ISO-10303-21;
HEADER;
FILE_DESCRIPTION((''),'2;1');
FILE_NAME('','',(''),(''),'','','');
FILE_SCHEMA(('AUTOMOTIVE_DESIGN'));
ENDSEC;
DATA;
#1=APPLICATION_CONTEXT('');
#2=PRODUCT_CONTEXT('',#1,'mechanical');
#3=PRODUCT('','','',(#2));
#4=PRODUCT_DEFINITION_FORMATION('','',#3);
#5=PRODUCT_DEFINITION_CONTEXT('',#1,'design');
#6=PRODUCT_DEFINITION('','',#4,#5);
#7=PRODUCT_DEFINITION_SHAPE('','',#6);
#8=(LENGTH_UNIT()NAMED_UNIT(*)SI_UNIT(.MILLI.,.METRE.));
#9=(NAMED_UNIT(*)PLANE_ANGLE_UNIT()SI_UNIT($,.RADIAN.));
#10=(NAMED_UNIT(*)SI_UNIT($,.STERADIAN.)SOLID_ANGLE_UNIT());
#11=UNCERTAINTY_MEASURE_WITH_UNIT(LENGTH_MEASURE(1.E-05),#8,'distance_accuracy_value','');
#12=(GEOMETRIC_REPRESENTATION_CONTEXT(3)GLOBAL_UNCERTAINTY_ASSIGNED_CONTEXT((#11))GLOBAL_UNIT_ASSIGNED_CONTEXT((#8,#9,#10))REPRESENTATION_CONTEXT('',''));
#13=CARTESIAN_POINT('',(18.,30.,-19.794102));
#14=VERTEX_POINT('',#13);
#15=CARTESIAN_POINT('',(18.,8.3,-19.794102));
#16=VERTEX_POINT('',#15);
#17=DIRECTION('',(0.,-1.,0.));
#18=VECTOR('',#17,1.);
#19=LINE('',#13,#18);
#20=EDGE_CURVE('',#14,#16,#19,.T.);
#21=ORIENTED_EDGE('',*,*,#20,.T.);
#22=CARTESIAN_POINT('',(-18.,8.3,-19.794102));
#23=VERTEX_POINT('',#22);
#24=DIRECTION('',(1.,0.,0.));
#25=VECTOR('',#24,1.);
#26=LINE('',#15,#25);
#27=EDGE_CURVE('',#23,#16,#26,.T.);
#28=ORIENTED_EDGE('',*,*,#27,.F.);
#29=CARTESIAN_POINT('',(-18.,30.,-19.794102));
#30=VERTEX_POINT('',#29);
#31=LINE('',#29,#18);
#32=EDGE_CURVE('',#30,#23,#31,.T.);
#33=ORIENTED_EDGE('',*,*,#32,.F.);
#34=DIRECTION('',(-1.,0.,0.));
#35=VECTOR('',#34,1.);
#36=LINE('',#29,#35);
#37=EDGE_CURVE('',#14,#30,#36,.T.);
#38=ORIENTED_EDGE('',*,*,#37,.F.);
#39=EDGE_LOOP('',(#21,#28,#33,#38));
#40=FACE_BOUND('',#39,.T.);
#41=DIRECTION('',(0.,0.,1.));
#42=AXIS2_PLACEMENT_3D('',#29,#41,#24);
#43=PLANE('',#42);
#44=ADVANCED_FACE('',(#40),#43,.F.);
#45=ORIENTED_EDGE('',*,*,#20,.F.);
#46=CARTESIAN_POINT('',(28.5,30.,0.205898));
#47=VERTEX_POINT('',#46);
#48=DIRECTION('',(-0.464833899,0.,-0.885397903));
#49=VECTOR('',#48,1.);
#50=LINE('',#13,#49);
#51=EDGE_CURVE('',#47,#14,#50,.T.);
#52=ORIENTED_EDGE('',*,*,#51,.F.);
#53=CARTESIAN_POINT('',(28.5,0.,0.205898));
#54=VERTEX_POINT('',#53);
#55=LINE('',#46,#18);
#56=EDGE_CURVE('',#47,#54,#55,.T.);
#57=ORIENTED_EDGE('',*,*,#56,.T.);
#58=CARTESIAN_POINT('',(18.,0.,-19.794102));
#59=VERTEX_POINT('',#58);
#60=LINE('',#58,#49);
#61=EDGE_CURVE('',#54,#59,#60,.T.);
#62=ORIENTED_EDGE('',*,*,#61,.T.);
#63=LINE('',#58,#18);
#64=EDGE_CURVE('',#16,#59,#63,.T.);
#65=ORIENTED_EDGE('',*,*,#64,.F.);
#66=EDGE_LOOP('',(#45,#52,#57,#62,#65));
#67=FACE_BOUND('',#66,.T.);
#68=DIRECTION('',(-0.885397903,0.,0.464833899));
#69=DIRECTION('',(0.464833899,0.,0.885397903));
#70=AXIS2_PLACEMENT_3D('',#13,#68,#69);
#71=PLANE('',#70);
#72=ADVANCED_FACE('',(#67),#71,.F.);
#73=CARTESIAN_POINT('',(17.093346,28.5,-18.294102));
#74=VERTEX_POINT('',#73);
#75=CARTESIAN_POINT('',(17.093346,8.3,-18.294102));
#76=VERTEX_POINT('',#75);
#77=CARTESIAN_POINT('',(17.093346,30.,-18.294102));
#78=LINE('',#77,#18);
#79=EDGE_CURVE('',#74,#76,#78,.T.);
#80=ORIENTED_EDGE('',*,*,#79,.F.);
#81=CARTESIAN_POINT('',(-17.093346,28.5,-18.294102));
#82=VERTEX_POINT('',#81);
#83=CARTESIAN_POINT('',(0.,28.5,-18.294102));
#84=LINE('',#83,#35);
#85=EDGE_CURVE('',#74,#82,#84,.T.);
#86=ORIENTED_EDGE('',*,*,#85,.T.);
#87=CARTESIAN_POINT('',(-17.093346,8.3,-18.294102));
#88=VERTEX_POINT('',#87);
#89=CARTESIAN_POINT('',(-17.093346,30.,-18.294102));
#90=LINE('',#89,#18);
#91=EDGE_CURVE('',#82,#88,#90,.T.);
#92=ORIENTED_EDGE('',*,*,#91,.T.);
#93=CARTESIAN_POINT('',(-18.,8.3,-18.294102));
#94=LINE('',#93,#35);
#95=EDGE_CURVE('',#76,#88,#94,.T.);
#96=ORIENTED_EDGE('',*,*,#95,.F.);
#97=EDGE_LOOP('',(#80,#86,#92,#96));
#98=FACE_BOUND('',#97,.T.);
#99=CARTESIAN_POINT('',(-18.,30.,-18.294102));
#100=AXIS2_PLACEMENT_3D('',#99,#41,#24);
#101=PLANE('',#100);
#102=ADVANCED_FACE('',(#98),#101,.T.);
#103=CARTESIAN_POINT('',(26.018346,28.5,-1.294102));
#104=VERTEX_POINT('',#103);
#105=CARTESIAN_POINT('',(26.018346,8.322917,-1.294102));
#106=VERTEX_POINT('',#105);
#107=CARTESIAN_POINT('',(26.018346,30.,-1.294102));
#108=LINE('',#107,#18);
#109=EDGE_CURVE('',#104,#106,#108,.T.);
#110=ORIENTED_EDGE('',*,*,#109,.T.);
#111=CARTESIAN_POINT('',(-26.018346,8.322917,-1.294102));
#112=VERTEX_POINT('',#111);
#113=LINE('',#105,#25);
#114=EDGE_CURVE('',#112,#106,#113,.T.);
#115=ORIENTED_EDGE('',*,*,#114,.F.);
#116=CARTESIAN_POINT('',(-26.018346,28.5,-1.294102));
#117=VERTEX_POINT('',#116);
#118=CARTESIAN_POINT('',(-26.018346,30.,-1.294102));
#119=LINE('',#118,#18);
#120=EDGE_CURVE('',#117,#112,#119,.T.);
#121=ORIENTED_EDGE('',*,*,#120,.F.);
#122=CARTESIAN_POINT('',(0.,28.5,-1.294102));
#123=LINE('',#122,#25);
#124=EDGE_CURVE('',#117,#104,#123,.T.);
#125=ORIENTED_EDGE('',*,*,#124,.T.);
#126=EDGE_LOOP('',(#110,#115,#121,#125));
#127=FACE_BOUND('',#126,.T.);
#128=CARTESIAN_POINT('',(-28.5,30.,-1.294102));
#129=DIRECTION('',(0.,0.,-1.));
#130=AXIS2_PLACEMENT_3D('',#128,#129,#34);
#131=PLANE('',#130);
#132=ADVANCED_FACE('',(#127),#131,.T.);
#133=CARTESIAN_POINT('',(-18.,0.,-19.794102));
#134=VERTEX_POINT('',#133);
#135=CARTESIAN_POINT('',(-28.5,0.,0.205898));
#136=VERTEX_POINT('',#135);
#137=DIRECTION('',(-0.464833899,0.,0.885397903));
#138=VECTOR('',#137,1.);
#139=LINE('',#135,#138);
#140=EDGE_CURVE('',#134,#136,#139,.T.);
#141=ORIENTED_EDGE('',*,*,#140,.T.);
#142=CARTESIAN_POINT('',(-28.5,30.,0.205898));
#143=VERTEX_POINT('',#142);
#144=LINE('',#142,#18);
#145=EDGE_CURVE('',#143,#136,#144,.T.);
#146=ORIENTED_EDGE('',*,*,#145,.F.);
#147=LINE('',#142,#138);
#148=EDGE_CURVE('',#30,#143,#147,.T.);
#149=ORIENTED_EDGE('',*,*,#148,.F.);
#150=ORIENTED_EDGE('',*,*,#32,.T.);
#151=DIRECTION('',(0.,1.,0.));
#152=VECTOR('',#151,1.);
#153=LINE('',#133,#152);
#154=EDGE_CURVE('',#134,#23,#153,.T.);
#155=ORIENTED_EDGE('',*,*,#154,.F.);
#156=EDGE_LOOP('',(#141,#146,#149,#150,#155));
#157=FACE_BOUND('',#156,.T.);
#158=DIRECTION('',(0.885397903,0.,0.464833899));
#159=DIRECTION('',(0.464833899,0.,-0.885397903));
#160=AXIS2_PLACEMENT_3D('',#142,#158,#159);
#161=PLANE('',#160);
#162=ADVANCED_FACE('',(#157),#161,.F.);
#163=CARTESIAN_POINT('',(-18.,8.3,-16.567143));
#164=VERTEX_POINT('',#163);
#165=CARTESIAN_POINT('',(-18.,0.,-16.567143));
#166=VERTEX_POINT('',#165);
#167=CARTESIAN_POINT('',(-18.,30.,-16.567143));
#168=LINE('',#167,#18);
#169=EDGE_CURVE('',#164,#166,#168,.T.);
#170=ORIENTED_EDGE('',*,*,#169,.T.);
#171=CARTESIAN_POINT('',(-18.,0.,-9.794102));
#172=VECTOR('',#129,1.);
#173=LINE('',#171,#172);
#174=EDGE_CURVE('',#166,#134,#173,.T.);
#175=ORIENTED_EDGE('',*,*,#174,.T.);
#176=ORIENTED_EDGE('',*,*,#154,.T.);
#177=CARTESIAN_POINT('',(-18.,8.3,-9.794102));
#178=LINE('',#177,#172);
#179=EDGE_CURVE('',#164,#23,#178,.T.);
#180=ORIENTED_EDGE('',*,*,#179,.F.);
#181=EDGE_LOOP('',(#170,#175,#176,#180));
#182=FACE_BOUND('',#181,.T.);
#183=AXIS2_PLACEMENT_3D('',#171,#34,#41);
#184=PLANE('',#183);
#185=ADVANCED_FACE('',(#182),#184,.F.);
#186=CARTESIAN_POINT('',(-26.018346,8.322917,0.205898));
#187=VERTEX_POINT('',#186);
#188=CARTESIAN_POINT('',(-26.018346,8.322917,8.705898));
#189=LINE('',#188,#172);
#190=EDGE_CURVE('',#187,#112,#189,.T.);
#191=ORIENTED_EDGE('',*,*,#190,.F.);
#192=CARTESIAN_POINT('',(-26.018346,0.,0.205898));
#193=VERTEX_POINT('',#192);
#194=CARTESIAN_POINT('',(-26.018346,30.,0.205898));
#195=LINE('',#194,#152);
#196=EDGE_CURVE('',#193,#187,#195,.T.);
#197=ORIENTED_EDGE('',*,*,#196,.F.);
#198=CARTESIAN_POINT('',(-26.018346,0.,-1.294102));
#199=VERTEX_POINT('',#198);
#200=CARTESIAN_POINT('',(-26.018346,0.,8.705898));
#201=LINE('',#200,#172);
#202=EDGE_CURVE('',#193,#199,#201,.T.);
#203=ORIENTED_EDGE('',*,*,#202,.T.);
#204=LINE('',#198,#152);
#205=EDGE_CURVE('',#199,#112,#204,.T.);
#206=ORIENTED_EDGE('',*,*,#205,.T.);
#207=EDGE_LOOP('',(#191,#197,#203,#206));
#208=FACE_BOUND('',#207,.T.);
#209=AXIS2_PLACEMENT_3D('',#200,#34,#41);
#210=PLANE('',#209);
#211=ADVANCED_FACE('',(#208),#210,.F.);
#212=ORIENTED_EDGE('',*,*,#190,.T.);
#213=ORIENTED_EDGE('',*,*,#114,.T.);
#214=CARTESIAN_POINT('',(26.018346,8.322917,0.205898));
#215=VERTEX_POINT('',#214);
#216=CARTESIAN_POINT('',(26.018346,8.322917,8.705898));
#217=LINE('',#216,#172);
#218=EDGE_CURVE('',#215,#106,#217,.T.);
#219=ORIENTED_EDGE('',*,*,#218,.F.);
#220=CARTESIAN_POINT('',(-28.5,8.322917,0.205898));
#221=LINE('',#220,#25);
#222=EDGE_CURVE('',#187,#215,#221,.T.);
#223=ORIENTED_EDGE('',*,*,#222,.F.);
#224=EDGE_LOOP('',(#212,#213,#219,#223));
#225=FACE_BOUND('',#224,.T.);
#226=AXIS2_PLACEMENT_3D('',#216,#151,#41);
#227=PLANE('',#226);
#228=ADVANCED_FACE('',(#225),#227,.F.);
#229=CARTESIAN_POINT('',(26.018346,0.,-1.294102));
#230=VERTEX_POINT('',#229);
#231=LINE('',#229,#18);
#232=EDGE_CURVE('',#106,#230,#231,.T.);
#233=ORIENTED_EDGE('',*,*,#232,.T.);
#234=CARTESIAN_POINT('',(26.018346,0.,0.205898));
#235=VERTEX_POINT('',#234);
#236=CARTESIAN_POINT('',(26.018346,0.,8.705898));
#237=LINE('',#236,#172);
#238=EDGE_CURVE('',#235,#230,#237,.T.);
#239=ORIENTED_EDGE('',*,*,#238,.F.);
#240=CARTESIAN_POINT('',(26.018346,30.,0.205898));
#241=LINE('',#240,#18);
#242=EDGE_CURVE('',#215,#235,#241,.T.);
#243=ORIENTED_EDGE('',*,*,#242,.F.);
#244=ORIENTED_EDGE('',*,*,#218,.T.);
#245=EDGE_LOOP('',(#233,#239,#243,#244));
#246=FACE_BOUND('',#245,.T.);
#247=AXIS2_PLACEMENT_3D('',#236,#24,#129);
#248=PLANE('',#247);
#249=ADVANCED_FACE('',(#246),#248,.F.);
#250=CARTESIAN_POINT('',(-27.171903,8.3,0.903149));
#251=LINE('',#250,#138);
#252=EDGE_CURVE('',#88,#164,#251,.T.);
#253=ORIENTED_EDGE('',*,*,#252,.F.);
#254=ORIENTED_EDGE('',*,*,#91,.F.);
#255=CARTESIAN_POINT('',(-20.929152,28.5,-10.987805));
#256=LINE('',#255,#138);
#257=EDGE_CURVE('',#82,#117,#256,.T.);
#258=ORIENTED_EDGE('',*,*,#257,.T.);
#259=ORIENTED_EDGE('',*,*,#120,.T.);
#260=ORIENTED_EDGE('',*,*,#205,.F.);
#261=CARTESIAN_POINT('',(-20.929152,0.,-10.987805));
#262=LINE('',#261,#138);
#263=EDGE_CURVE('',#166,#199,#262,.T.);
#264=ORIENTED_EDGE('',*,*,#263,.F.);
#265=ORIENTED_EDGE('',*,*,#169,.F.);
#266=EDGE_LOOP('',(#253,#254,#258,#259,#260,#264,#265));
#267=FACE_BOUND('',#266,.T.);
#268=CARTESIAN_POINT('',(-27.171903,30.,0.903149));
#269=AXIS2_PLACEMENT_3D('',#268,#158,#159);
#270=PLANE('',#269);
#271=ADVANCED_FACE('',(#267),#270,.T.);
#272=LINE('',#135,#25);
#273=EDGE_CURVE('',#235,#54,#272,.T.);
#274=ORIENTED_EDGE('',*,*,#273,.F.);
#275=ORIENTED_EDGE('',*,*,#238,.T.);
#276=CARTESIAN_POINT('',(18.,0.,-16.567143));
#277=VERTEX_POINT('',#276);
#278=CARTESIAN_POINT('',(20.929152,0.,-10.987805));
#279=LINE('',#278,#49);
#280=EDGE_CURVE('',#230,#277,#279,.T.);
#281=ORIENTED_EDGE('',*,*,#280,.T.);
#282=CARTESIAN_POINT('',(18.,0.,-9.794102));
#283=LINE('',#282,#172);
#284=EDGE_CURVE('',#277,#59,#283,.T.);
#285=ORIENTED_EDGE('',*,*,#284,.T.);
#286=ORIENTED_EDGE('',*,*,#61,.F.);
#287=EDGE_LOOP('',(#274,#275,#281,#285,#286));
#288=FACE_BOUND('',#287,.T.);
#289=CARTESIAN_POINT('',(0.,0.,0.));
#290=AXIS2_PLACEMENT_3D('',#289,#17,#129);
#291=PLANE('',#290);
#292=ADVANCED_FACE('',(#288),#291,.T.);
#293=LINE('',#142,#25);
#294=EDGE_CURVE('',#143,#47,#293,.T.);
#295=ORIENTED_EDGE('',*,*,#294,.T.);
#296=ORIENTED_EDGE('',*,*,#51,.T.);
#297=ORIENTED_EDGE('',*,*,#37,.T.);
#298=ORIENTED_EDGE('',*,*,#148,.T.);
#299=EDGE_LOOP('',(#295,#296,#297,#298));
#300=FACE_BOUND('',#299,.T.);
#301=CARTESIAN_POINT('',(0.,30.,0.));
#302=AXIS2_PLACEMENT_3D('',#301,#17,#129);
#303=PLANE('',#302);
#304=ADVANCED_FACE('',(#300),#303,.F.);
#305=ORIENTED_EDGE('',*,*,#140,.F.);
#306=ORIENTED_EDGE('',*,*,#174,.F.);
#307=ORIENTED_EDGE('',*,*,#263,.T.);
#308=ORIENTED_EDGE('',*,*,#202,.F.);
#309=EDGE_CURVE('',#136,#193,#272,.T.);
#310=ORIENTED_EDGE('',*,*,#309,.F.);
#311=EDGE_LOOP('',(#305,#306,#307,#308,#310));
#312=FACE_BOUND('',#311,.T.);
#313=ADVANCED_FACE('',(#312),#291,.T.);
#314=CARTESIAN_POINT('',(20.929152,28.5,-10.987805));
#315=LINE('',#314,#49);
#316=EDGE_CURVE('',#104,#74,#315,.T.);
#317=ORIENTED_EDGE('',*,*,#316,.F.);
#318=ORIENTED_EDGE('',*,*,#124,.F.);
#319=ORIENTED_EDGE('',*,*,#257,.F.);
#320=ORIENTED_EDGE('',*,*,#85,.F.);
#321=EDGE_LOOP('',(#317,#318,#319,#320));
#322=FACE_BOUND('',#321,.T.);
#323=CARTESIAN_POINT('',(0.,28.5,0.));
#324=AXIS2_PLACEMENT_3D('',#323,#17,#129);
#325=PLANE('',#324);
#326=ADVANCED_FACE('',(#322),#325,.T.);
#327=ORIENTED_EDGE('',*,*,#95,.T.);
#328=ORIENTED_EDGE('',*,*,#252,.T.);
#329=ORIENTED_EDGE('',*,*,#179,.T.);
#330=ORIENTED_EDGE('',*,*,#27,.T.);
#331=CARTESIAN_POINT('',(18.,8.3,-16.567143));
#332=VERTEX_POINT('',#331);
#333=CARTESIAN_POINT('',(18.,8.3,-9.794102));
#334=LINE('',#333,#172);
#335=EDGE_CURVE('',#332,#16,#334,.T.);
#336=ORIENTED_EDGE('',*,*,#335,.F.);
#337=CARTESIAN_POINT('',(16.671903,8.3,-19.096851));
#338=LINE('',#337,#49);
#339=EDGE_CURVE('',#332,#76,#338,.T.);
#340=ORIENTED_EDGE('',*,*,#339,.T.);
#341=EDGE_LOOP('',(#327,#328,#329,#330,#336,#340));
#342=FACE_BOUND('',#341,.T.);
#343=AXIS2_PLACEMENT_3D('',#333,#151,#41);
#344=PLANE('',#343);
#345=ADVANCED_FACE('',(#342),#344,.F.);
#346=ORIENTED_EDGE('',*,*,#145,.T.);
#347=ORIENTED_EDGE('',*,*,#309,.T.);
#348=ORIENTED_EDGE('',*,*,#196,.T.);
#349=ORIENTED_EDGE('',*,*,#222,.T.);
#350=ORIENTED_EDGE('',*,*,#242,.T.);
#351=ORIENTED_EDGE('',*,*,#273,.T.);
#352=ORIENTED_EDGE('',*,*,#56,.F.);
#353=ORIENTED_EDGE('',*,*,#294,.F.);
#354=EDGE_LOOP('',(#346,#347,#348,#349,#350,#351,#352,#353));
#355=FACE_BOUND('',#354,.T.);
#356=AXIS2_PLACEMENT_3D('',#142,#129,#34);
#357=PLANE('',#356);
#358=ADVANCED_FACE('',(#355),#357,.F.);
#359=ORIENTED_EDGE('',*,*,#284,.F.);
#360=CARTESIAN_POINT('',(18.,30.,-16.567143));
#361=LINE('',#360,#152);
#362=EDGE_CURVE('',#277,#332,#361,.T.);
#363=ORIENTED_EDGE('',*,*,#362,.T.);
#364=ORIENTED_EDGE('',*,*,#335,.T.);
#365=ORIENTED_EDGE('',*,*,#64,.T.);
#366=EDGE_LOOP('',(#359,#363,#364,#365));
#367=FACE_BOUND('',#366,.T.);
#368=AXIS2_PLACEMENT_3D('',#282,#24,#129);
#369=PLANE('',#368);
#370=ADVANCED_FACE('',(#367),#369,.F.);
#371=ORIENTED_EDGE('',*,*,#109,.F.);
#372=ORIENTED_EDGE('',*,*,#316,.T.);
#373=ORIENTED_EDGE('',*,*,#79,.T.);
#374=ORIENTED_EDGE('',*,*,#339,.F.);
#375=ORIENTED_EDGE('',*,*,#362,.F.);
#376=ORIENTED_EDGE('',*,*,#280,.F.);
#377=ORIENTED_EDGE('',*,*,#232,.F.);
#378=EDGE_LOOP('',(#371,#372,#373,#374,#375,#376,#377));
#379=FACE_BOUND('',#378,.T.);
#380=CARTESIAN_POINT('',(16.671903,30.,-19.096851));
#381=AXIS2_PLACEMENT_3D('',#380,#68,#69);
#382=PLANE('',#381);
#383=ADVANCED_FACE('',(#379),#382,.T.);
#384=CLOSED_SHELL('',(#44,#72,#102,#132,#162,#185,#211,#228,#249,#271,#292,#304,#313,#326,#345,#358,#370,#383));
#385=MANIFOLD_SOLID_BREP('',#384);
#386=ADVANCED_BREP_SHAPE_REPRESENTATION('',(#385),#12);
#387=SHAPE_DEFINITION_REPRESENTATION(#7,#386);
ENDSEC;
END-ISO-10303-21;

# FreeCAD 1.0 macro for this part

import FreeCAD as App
import Part
import Sketcher
from FreeCAD import Vector
Q = App.Units.Quantity


def faces_at(feature, points):
    """Names of the faces that lie closest to the given points."""
    faces = feature.Shape.Faces
    near = lambda p: min(range(len(faces)), key=lambda i: faces[i].distToShape(Part.Vertex(*p))[0])
    return sorted({f"Face{near(p) + 1}" for p in points})

doc = App.newDocument("Part")
params = doc.addObject("Spreadsheet::Sheet", "Params")
for row, (alias, value) in enumerate([
    ("sketch1_width", "57 mm"),
    ("sketch1_width2", "36 mm"),
    ("pad1_length", "30 mm"),
    ("thickness_wall", "1.5 mm"),
    ("sketch2_width", "36 mm"),
    ("sketch2_height", "8.3 mm"),
    ("pocket1_length", "10 mm"),
    ("pocket2_length", "10 mm"),
], start=1):
    params.set(f"A{row}", alias)
    params.set(f"B{row}", "=" + value)
    params.setAlias(f"B{row}", alias)

body = doc.addObject("PartDesign::Body", "Body")

# Sketch on XZ plane
sketch1 = doc.addObject("Sketcher::SketchObject", "Sketch")
body.addObject(sketch1)
sketch1.AttachmentSupport = (doc.XZ_Plane, [""])
sketch1.MapMode = "FlatFace"
sketch1.addGeometry([
    Part.LineSegment(Vector(-18, -19.794102, 0), Vector(-28.5, 0.205898, 0)),
    Part.LineSegment(Vector(-28.5, 0.205898, 0), Vector(28.5, 0.205898, 0)),
    Part.LineSegment(Vector(28.5, 0.205898, 0), Vector(18, -19.794102, 0)),
    Part.LineSegment(Vector(18, -19.794102, 0), Vector(-18, -19.794102, 0)),
], False)
sketch1.addConstraint([
    Sketcher.Constraint("Coincident", 0, 2, 1, 1),
    Sketcher.Constraint("Coincident", 1, 2, 2, 1),
    Sketcher.Constraint("Coincident", 2, 2, 3, 1),
    Sketcher.Constraint("Coincident", 3, 2, 0, 1),
    Sketcher.Constraint("Horizontal", 1),
    Sketcher.Constraint("Horizontal", 3),
    Sketcher.Constraint("Equal", 0, 2),
    Sketcher.Constraint("DistanceX", 1, 1, 1, 2, Q("57 mm")),
    Sketcher.Constraint("DistanceX", 3, 2, 3, 1, Q("36 mm")),
    Sketcher.Constraint("DistanceX", -1, 1, 2, 2, Q("18 mm")),
    Sketcher.Constraint("DistanceY", 2, 2, 1, 2, Q("20 mm")),
    Sketcher.Constraint("DistanceY", -1, 1, 0, 2, Q("0.205898 mm")),
])
sketch1.setExpression("Constraints[7]", "Params.sketch1_width")
sketch1.setExpression("Constraints[8]", "Params.sketch1_width2")
pad1 = doc.addObject("PartDesign::Pad", "Pad")
body.addObject(pad1)
pad1.Profile = sketch1
pad1.setExpression("Length", "Params.pad1_length")
pad1.Reversed = True
doc.recompute()

thickness = doc.addObject("PartDesign::Thickness", "Thickness")
body.addObject(thickness)
thickness.Base = (pad1, faces_at(pad1, [(0, 0, -9.794)]))
thickness.setExpression("Value", "Params.thickness_wall")
thickness.Reversed = True
thickness.Join = "Intersection"

# Sketch on XY plane
sketch2 = doc.addObject("Sketcher::SketchObject", "Sketch001")
body.addObject(sketch2)
sketch2.AttachmentSupport = (doc.XY_Plane, [""])
sketch2.MapMode = "FlatFace"
sketch2.AttachmentOffset = App.Placement(Vector(0, 0, -19.794102), App.Rotation())
sketch2.addGeometry([
    Part.LineSegment(Vector(18, 8.3, 0), Vector(18, 0, 0)),
    Part.LineSegment(Vector(18, 0, 0), Vector(-18, 0, 0)),
    Part.LineSegment(Vector(-18, 0, 0), Vector(-18, 8.3, 0)),
    Part.LineSegment(Vector(-18, 8.3, 0), Vector(18, 8.3, 0)),
], False)
sketch2.addConstraint([
    Sketcher.Constraint("Coincident", 0, 2, 1, 1),
    Sketcher.Constraint("Coincident", 1, 2, 2, 1),
    Sketcher.Constraint("Coincident", 2, 2, 3, 1),
    Sketcher.Constraint("Coincident", 3, 2, 0, 1),
    Sketcher.Constraint("Vertical", 0),
    Sketcher.Constraint("Horizontal", 1),
    Sketcher.Constraint("Vertical", 2),
    Sketcher.Constraint("Horizontal", 3),
    Sketcher.Constraint("Symmetric", 0, 2, 1, 2, -1, 1),
    Sketcher.Constraint("DistanceX", 1, 2, 1, 1, Q("36 mm")),
    Sketcher.Constraint("DistanceY", 0, 2, 0, 1, Q("8.3 mm")),
])
sketch2.setExpression("Constraints[9]", "Params.sketch2_width")
sketch2.setExpression("Constraints[10]", "Params.sketch2_height")
pocket1 = doc.addObject("PartDesign::Pocket", "Pocket")
body.addObject(pocket1)
pocket1.Profile = sketch2
pocket1.setExpression("Length", "Params.pocket1_length")
pocket1.Reversed = True

# Sketch on XY plane
sketch3 = doc.addObject("Sketcher::SketchObject", "Sketch002")
body.addObject(sketch3)
sketch3.AttachmentSupport = (doc.XY_Plane, [""])
sketch3.MapMode = "FlatFace"
sketch3.AttachmentOffset = App.Placement(Vector(0, 0, -1.294102), App.Rotation())
sketch3.addGeometry([
    Part.LineSegment(Vector(26.018346, 8.322917, 0), Vector(26.018346, 0, 0)),
    Part.LineSegment(Vector(26.018346, 0, 0), Vector(-26.018346, 0, 0)),
    Part.LineSegment(Vector(-26.018346, 0, 0), Vector(-26.018346, 8.322917, 0)),
    Part.LineSegment(Vector(-26.018346, 8.322917, 0), Vector(26.018346, 8.322917, 0)),
], False)
sketch3.addConstraint([
    Sketcher.Constraint("Coincident", 0, 2, 1, 1),
    Sketcher.Constraint("Coincident", 1, 2, 2, 1),
    Sketcher.Constraint("Coincident", 2, 2, 3, 1),
    Sketcher.Constraint("Coincident", 3, 2, 0, 1),
    Sketcher.Constraint("Vertical", 0),
    Sketcher.Constraint("Horizontal", 1),
    Sketcher.Constraint("Vertical", 2),
    Sketcher.Constraint("Horizontal", 3),
    Sketcher.Constraint("Symmetric", 0, 2, 1, 2, -1, 1),
    Sketcher.Constraint("DistanceX", 1, 2, 1, 1, Q("52.036693 mm")),
    Sketcher.Constraint("DistanceY", 0, 2, 0, 1, Q("8.322917 mm")),
])
pocket2 = doc.addObject("PartDesign::Pocket", "Pocket001")
body.addObject(pocket2)
pocket2.Profile = sketch3
pocket2.setExpression("Length", "Params.pocket2_length")
pocket2.Reversed = True

doc.recompute()
